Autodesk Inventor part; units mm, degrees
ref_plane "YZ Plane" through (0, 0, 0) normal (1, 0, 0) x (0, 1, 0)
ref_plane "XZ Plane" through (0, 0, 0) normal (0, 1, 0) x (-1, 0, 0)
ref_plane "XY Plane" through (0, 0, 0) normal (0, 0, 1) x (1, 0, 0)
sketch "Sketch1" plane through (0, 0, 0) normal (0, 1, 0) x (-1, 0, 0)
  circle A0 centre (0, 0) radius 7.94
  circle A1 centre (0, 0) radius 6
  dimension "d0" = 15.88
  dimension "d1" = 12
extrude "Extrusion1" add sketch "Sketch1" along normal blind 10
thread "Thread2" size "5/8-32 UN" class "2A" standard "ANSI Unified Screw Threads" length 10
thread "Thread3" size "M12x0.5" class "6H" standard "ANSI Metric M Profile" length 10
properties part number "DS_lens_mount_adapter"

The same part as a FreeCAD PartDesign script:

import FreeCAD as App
import Part
import Sketcher
Q = App.Units.Quantity

doc = App.newDocument("Part")
body = doc.addObject("PartDesign::Body", "Body")

# Sketch on XZ plane
sketch1 = doc.addObject("Sketcher::SketchObject", "Sketch")
body.addObject(sketch1)
sketch1.AttachmentSupport = (doc.XZ_Plane, [""])
sketch1.MapMode = "FlatFace"
sketch1.addGeometry([
    Part.Circle(App.Vector(0, 0, 0), App.Vector(0, 0, 1), 7.94),
    Part.Circle(App.Vector(0, 0, 0), App.Vector(0, 0, 1), 6),
], False)
sketch1.addConstraint([
    Sketcher.Constraint("Coincident", 0, 3, -1, 1),
    Sketcher.Constraint("Coincident", 1, 3, -1, 1),
    Sketcher.Constraint("Diameter", 1, Q("12 mm")),
    Sketcher.Constraint("Diameter", 0, Q("15.88 mm")),
])
pad1 = doc.addObject("PartDesign::Pad", "Pad")
body.addObject(pad1)
pad1.Profile = sketch1
pad1.Length = 10
pad1.Reversed = True

doc.recompute()
